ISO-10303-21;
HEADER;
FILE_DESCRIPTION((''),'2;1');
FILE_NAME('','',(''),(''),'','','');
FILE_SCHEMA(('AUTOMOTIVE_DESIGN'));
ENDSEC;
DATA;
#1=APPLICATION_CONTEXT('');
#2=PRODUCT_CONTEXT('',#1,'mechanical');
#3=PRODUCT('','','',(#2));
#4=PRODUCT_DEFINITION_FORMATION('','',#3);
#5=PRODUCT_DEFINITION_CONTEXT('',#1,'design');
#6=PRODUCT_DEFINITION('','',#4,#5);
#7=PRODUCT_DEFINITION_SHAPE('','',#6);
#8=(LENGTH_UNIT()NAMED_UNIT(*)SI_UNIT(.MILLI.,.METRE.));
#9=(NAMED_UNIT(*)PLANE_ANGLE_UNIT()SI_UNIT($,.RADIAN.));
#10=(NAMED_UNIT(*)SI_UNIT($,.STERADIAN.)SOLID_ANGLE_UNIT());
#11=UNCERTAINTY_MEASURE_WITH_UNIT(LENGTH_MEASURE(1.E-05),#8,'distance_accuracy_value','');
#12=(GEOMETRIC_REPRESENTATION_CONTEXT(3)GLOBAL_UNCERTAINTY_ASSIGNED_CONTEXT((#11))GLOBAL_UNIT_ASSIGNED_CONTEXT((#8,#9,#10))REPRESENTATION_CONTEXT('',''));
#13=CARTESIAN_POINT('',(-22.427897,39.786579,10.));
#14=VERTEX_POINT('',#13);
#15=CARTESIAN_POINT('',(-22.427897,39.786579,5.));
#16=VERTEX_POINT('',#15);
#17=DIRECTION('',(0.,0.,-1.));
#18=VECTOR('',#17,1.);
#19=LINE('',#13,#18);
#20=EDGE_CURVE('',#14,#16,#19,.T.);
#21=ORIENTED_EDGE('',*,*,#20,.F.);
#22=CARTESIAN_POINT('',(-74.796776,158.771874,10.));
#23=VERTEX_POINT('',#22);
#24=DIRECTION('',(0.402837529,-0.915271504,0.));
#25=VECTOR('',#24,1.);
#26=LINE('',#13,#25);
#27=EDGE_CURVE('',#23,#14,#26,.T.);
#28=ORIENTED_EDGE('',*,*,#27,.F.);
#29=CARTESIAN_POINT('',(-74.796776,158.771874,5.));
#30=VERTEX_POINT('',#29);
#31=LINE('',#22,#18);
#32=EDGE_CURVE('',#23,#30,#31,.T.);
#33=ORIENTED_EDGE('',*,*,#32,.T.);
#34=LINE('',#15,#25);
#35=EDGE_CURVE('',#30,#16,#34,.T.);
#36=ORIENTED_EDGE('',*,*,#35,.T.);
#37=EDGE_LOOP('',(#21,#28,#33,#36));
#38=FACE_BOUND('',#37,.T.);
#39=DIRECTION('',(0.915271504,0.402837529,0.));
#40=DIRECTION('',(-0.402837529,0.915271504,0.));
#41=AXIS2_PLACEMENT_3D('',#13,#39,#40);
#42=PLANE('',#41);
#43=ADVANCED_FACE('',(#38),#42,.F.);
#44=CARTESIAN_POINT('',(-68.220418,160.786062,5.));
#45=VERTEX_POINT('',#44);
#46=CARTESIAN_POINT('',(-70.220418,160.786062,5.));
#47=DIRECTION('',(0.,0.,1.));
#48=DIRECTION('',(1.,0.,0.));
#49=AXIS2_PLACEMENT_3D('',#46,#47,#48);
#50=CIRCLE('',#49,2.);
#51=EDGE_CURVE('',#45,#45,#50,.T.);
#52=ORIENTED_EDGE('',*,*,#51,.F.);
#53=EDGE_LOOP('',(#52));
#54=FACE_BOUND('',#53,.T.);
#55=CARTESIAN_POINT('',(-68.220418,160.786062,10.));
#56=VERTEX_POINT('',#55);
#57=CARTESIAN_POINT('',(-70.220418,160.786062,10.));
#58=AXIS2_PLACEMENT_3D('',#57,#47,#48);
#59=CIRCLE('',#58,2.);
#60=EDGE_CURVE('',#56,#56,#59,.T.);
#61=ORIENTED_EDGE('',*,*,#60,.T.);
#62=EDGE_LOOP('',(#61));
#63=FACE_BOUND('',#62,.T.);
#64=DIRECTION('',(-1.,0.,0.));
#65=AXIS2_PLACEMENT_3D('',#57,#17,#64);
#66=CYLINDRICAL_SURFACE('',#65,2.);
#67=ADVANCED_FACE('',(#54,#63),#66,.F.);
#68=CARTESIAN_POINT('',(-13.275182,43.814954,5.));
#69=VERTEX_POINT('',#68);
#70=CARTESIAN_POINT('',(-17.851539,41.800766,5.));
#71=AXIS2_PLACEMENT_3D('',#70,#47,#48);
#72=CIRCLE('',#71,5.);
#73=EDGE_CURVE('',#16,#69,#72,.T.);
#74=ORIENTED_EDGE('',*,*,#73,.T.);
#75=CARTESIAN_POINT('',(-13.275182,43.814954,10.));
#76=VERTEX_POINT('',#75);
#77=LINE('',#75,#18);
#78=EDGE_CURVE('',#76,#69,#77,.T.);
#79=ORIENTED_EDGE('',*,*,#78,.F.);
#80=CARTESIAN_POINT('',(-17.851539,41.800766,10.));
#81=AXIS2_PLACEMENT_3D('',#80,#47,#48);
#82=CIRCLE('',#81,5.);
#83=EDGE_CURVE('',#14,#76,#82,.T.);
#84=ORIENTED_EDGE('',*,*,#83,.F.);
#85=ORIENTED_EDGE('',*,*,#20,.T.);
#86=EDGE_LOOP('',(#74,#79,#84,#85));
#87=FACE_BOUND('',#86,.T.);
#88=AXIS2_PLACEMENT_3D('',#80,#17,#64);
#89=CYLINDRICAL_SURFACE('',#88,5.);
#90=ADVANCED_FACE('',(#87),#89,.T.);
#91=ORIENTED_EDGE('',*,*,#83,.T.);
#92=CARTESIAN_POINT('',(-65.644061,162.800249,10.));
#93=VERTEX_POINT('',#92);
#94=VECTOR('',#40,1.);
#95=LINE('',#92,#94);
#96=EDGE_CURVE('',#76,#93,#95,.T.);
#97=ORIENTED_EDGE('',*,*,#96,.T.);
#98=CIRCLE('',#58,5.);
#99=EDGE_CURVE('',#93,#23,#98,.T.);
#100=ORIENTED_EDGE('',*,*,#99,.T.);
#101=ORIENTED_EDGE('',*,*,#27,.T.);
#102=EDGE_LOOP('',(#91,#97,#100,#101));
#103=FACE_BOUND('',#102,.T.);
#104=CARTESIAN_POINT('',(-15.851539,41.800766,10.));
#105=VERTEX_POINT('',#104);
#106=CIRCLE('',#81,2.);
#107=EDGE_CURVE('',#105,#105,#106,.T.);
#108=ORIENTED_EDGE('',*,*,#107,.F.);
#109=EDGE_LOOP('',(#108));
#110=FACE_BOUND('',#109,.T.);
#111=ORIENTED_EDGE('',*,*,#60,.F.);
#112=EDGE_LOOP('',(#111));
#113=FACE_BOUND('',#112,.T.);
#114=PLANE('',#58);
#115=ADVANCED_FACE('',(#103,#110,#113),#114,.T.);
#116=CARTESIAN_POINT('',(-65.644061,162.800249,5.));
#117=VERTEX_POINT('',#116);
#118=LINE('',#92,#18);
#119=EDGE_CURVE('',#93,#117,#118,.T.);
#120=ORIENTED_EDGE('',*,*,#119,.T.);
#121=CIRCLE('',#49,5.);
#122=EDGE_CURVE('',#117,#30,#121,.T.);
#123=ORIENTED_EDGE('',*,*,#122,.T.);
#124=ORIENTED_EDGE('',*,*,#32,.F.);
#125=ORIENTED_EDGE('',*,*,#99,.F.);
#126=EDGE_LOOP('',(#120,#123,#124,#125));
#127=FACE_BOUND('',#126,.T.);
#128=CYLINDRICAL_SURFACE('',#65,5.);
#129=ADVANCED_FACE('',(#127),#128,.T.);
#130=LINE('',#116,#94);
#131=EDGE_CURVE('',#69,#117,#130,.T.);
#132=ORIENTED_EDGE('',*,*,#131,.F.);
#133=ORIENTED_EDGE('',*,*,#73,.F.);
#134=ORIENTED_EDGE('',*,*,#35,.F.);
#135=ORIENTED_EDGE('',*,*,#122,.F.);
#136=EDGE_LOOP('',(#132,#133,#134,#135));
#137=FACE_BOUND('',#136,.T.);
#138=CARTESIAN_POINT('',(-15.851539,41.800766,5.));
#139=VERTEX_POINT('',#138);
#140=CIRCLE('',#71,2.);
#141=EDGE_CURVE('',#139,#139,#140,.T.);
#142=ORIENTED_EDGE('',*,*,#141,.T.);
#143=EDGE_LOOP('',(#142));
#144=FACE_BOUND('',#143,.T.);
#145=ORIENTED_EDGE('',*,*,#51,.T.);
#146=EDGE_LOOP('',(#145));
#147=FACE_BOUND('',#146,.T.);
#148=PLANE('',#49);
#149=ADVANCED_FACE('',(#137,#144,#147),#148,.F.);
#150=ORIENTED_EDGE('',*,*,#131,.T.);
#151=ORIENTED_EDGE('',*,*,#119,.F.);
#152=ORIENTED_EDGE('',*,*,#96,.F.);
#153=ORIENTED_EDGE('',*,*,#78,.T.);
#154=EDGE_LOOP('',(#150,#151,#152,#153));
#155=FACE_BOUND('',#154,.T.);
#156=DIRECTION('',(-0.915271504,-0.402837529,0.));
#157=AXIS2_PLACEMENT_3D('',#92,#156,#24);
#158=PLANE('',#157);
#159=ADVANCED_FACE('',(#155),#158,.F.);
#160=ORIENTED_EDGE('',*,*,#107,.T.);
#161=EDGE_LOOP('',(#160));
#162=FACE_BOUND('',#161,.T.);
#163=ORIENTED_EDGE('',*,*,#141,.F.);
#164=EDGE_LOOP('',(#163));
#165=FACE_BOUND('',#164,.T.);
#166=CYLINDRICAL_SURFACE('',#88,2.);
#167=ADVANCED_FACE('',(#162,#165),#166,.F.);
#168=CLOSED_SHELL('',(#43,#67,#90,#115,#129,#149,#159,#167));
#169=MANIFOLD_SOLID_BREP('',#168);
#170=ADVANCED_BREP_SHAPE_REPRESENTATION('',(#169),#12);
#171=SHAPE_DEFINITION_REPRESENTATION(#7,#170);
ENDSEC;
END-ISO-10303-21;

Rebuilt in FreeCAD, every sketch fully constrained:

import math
import FreeCAD as App
import Part
import Sketcher

V = App.Vector
Q = App.Units.Quantity

doc = App.newDocument("Part")
params = doc.addObject("Spreadsheet::Sheet", "Params")
for row, (alias, value) in enumerate([
    ("sketch1_diameter", "4 mm"),
    ("sketch1_radius", "5 mm"),
    ("sketch1_length", "130 mm"),
    ("pad1_length", "5 mm"),
], start=1):
    params.set(f"A{row}", alias)
    params.set(f"B{row}", "=" + value)
    params.setAlias(f"B{row}", alias)

body = doc.addObject("PartDesign::Body", "Body")

# Sketch on XY plane
sketch1 = doc.addObject("Sketcher::SketchObject", "Sketch")
body.addObject(sketch1)
sketch1.AttachmentSupport = (doc.XY_Plane, [""])
sketch1.MapMode = "FlatFace"
sketch1.AttachmentOffset = App.Placement(V(0, 0, 5), App.Rotation())
sketch1.addGeometry([
    Part.LineSegment(V(-13.3, 43.8, 0), V(-65.6, 162.8, 0)),  # 0
    Part.ArcOfCircle(Part.Circle(V(-70.2, 160.8, 0), V(0, 0, 1), 5), math.radians(24), math.radians(204)),  # 1
    Part.LineSegment(V(-74.8, 158.8, 0), V(-22.4, 39.8, 0)),  # 2
    Part.ArcOfCircle(Part.Circle(V(-17.9, 41.8, 0), V(0, 0, 1), 5), math.radians(-156), math.radians(24)),  # 3
    Part.Circle(V(-17.9, 41.8, 0), V(0, 0, 1), 2),  # 4
    Part.Circle(V(-70.2, 160.8, 0), V(0, 0, 1), 2),  # 5
], False)
sketch1.addConstraint([
    Sketcher.Constraint("Tangent", 0, 2, 1, 1),
    Sketcher.Constraint("Tangent", 1, 2, 2, 1),
    Sketcher.Constraint("Tangent", 2, 2, 3, 1),
    Sketcher.Constraint("Tangent", 3, 2, 0, 1),
    Sketcher.Constraint("Coincident", 4, 3, 3, 3),
    Sketcher.Constraint("Coincident", 5, 3, 1, 3),
    Sketcher.Constraint("Equal", 1, 3),
    Sketcher.Constraint("Equal", 4, 5),
    Sketcher.Constraint("Diameter", 4, Q("4 mm")),
    Sketcher.Constraint("Radius", 1, Q("5 mm")),
    Sketcher.Constraint("Distance", 0, Q("130 mm")),
    Sketcher.Constraint("DistanceX", 1, 3, -1, 1, Q("70.220418 mm")),
    Sketcher.Constraint("DistanceY", -1, 1, 1, 3, Q("160.786062 mm")),
    Sketcher.Constraint("DistanceX", 3, 3, -1, 1, Q("17.851539 mm")),
])
sketch1.setExpression("Constraints[8]", "Params.sketch1_diameter")
sketch1.setExpression("Constraints[9]", "Params.sketch1_radius")
sketch1.setExpression("Constraints[10]", "Params.sketch1_length")
pad1 = doc.addObject("PartDesign::Pad", "Pad")
body.addObject(pad1)
pad1.Profile = sketch1
pad1.setExpression("Length", "Params.pad1_length")

doc.recompute()
